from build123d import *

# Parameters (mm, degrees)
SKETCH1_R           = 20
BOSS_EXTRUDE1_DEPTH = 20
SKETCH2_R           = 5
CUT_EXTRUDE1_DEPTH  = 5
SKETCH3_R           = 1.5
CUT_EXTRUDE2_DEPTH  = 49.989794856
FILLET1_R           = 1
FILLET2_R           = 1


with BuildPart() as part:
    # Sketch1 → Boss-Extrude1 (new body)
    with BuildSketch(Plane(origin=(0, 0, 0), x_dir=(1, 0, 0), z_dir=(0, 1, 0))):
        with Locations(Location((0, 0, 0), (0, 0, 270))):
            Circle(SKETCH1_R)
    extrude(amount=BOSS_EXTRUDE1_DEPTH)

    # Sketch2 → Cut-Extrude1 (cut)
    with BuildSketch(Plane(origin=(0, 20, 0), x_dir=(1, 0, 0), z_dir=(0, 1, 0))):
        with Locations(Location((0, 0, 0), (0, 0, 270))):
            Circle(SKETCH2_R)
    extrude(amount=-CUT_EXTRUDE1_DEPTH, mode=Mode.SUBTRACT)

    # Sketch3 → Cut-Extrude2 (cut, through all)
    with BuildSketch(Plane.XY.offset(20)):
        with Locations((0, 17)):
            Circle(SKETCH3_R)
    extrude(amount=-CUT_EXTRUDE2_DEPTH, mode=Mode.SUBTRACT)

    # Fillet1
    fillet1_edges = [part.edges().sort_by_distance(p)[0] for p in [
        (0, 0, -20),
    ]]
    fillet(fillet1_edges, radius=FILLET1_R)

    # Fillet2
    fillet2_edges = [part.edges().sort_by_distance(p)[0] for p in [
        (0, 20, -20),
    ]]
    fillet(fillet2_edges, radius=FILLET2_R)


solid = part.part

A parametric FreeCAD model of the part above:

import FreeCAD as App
import Part
import Sketcher

V = App.Vector
Q = App.Units.Quantity


def edges_at(feature, points):
    """Names of the edges that pass closest to the given points."""
    edges = feature.Shape.Edges
    near = lambda p: min(range(len(edges)), key=lambda i: edges[i].distToShape(Part.Vertex(*p))[0])
    return sorted({f"Edge{near(p) + 1}" for p in points})

doc = App.newDocument("Part")
body = doc.addObject("PartDesign::Body", "Body")

sketch1 = body.newObject("Sketcher::SketchObject", "Sketch")
sketch1.AttachmentSupport = (doc.getObject("XZ_Plane"), [""])
sketch1.MapMode = "FlatFace"
sketch1.addGeometry(Part.Circle(V(0, 0, 0), V(0, 0, 1), 20), False)
sketch1.addConstraint([
    Sketcher.Constraint("Coincident", 0, 3, -1, 1),
    Sketcher.Constraint("Diameter", 0, Q("40 mm")),
])
pad1 = body.newObject("PartDesign::Pad", "Pad")
pad1.Profile = sketch1
pad1.Length = 20
pad1.Reversed = True

sketch2 = body.newObject("Sketcher::SketchObject", "Sketch001")
sketch2.AttachmentSupport = (doc.getObject("XZ_Plane"), [""])
sketch2.MapMode = "FlatFace"
sketch2.AttachmentOffset = App.Placement(V(0, 0, -20), App.Rotation())
sketch2.addGeometry(Part.Circle(V(0, 0, 0), V(0, 0, 1), 5), False)
sketch2.addConstraint([
    Sketcher.Constraint("Coincident", 0, 3, -1, 1),
    Sketcher.Constraint("Diameter", 0, Q("10 mm")),
])
pocket1 = body.newObject("PartDesign::Pocket", "Pocket")
pocket1.Profile = sketch2
pocket1.Length = 5
pocket1.Reversed = True

sketch3 = body.newObject("Sketcher::SketchObject", "Sketch002")
sketch3.AttachmentSupport = (doc.getObject("XY_Plane"), [""])
sketch3.MapMode = "FlatFace"
sketch3.AttachmentOffset = App.Placement(V(0, 0, 20), App.Rotation())
sketch3.addGeometry(Part.Circle(V(0, 17, 0), V(0, 0, 1), 1.5), False)
sketch3.addConstraint([
    Sketcher.Constraint("PointOnObject", 0, 3, -2),
    Sketcher.Constraint("Diameter", 0, Q("3 mm")),
    Sketcher.Constraint("DistanceY", -1, 1, 0, 3, Q("17 mm")),
])
pocket2 = body.newObject("PartDesign::Pocket", "Pocket001")
pocket2.Profile = sketch3
pocket2.Type = "ThroughAll"
doc.recompute()

fillet = body.newObject("PartDesign::Fillet", "Fillet")
fillet.Base = (pocket2, edges_at(pocket2, [(0, 0, -20)]))
fillet.Radius = 1
doc.recompute()

fillet2 = body.newObject("PartDesign::Fillet", "Fillet001")
fillet2.Base = (fillet, edges_at(fillet, [(0, 20, -20)]))
fillet2.Radius = 1

doc.recompute()
